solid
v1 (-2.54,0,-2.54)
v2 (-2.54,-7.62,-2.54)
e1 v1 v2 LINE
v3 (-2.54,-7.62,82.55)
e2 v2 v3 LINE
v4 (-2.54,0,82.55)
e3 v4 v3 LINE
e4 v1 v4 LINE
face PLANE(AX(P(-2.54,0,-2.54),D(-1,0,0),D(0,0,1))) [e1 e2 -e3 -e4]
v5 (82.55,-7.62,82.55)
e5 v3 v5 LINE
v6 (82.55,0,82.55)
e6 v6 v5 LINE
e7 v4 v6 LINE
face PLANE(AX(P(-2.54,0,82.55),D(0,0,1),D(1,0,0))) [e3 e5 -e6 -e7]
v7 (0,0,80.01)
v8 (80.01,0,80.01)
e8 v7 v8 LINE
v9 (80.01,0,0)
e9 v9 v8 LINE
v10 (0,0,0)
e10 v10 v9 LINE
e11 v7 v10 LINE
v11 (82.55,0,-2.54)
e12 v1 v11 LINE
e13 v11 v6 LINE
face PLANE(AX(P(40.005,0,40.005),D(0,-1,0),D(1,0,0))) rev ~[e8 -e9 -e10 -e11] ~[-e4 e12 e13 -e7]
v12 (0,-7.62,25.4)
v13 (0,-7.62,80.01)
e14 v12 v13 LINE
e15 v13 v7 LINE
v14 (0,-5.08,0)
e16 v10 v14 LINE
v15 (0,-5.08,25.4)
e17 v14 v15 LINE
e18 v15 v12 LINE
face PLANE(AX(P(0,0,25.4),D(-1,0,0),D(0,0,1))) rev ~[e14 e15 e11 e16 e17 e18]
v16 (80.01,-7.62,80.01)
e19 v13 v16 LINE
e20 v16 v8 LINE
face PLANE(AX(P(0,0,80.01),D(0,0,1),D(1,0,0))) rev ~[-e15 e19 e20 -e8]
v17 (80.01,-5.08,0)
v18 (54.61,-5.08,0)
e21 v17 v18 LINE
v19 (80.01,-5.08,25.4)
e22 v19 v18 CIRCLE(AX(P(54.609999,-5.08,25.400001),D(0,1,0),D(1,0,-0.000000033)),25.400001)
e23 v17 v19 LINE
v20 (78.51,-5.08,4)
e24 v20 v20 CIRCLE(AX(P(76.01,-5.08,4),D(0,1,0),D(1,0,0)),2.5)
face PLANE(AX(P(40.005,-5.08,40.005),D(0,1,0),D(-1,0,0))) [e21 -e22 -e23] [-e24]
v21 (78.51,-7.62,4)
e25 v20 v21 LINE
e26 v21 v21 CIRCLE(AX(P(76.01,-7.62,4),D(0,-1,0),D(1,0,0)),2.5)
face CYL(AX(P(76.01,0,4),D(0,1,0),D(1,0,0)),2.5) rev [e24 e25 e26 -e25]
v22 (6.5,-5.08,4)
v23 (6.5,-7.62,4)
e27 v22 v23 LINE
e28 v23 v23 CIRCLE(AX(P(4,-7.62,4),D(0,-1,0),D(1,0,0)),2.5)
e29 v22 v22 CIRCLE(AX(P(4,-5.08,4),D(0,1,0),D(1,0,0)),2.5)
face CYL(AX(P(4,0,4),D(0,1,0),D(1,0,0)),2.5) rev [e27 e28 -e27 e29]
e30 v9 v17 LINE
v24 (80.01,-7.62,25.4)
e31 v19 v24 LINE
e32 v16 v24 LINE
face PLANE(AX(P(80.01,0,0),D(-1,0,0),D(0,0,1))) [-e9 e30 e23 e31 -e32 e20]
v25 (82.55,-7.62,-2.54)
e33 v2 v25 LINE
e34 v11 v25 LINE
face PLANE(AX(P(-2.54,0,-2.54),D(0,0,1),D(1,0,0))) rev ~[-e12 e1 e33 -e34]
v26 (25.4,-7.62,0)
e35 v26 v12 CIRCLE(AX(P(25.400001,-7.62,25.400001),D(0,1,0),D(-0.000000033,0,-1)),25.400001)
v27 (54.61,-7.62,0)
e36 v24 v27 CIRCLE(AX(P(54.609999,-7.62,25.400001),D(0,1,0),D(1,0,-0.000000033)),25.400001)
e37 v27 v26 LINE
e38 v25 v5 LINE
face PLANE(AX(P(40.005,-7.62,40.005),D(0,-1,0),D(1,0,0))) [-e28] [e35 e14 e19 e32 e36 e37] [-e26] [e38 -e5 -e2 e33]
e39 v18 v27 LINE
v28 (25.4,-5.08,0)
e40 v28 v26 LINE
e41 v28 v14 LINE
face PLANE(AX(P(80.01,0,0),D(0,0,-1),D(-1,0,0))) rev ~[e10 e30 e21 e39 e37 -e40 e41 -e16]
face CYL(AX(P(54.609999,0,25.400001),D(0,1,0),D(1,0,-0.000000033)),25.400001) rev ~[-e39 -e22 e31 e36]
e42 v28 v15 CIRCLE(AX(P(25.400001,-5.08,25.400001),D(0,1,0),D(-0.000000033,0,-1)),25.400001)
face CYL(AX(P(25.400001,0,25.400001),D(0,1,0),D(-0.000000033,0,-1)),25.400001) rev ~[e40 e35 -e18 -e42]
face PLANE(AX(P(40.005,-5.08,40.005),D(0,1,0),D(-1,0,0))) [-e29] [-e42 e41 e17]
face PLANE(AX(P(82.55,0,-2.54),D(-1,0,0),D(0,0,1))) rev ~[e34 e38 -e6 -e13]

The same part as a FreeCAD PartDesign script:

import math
import FreeCAD as App
import Part
import Sketcher
from FreeCAD import Vector
Q = App.Units.Quantity

doc = App.newDocument("Part")
body = doc.addObject("PartDesign::Body", "Body")

# Sketch on XZ plane
sketch1 = body.newObject("Sketcher::SketchObject", "Sketch")
sketch1.AttachmentSupport = (doc.getObject("XZ_Plane"), [""])
sketch1.MapMode = "FlatFace"
sketch1.addGeometry(Part.LineSegment(Vector(-2.5, 82.5, 0), Vector(-2.5, -2.5, 0)), False)
sketch1.addGeometry(Part.LineSegment(Vector(-2.5, -2.5, 0), Vector(82.5, -2.5, 0)), False)
sketch1.addGeometry(Part.LineSegment(Vector(82.5, -2.5, 0), Vector(82.5, 82.5, 0)), False)
sketch1.addGeometry(Part.LineSegment(Vector(82.5, 82.5, 0), Vector(-2.5, 82.5, 0)), False)
sketch1.addGeometry(Part.Circle(Vector(4, 4, 0), Vector(0, 0, 1), 2.5), False)
sketch1.addGeometry(Part.LineSegment(Vector(54.6, 0, 0), Vector(25.4, 0, 0)), False)
sketch1.addGeometry(Part.ArcOfCircle(Part.Circle(Vector(25.4, 25.4, 0), Vector(0, 0, 1), 25.4), math.radians(-180), math.radians(-90)), False)
sketch1.addGeometry(Part.LineSegment(Vector(0, 25.4, 0), Vector(0, 80, 0)), False)
sketch1.addGeometry(Part.LineSegment(Vector(0, 80, 0), Vector(80, 80, 0)), False)
sketch1.addGeometry(Part.LineSegment(Vector(80, 80, 0), Vector(80, 25.4, 0)), False)
sketch1.addGeometry(Part.ArcOfCircle(Part.Circle(Vector(54.6, 25.4, 0), Vector(0, 0, 1), 25.4), math.radians(-90), math.radians(0)), False)
sketch1.addGeometry(Part.Circle(Vector(76, 4, 0), Vector(0, 0, 1), 2.5), False)
sketch1.addConstraint(Sketcher.Constraint("Coincident", 0, 2, 1, 1))
sketch1.addConstraint(Sketcher.Constraint("Coincident", 1, 2, 2, 1))
sketch1.addConstraint(Sketcher.Constraint("Coincident", 2, 2, 3, 1))
sketch1.addConstraint(Sketcher.Constraint("Coincident", 3, 2, 0, 1))
sketch1.addConstraint(Sketcher.Constraint("Tangent", 5, 2, 6, 2))
sketch1.addConstraint(Sketcher.Constraint("Tangent", 6, 1, 7, 1))
sketch1.addConstraint(Sketcher.Constraint("Coincident", 7, 2, 8, 1))
sketch1.addConstraint(Sketcher.Constraint("Coincident", 8, 2, 9, 1))
sketch1.addConstraint(Sketcher.Constraint("Tangent", 9, 2, 10, 2))
sketch1.addConstraint(Sketcher.Constraint("Tangent", 10, 1, 5, 1))
sketch1.addConstraint(Sketcher.Constraint("Vertical", 0))
sketch1.addConstraint(Sketcher.Constraint("Horizontal", 1))
sketch1.addConstraint(Sketcher.Constraint("Vertical", 2))
sketch1.addConstraint(Sketcher.Constraint("Horizontal", 3))
sketch1.addConstraint(Sketcher.Constraint("Horizontal", 5))
sketch1.addConstraint(Sketcher.Constraint("Vertical", 7))
sketch1.addConstraint(Sketcher.Constraint("Horizontal", 8))
sketch1.addConstraint(Sketcher.Constraint("Vertical", 9))
sketch1.addConstraint(Sketcher.Constraint("Equal", 6, 10))
sketch1.addConstraint(Sketcher.Constraint("Equal", 4, 11))
sketch1.addConstraint(Sketcher.Constraint("PointOnObject", 5, 2, -1))
sketch1.addConstraint(Sketcher.Constraint("PointOnObject", 6, 1, -2))
sketch1.addConstraint(Sketcher.Constraint("Horizontal", 4, 3, 11, 3))
sketch1.addConstraint(Sketcher.Constraint("Equal", 3, 0))
sketch1.addConstraint(Sketcher.Constraint("Radius", 6, Q("1 in")))
sketch1.addConstraint(Sketcher.Constraint("DistanceX", 1, 1, 1, 2, Q("3.35 in")))
sketch1.addConstraint(Sketcher.Constraint("DistanceX", 5, 2, 5, 1, Q("1.15 in")))
sketch1.addConstraint(Sketcher.Constraint("DistanceY", 7, 1, 7, 2, Q("2.15 in")))
sketch1.addConstraint(Sketcher.Constraint("DistanceX", 0, 2, -1, 1, Q("0.1 in")))
sketch1.addConstraint(Sketcher.Constraint("DistanceY", 0, 2, -1, 1, Q("0.1 in")))
sketch1.addConstraint(Sketcher.Constraint("Diameter", 4, 5.0))
sketch1.addConstraint(Sketcher.Constraint("DistanceX", -1, 1, 4, 3, 4.0))
sketch1.addConstraint(Sketcher.Constraint("DistanceY", -1, 1, 4, 3, 4.0))
sketch1.addConstraint(Sketcher.Constraint("DistanceX", -1, 1, 11, 3, 76.01))
pad1 = body.newObject("PartDesign::Pad", "Pad")
pad1.Profile = sketch1
pad1.Length = Q("0.3 in")

# Sketch on XZ plane
sketch2 = body.newObject("Sketcher::SketchObject", "Sketch001")
sketch2.AttachmentSupport = (doc.getObject("XZ_Plane"), [""])
sketch2.MapMode = "FlatFace"
sketch2.addGeometry(Part.LineSegment(Vector(80, 80, 0), Vector(80, 0, 0)), False)
sketch2.addGeometry(Part.LineSegment(Vector(80, 0, 0), Vector(0, 0, 0)), False)
sketch2.addGeometry(Part.LineSegment(Vector(0, 0, 0), Vector(0, 80, 0)), False)
sketch2.addGeometry(Part.LineSegment(Vector(0, 80, 0), Vector(80, 80, 0)), False)
sketch2.addConstraint(Sketcher.Constraint("Coincident", 0, 2, 1, 1))
sketch2.addConstraint(Sketcher.Constraint("Coincident", 1, 2, 2, 1))
sketch2.addConstraint(Sketcher.Constraint("Coincident", 2, 2, 3, 1))
sketch2.addConstraint(Sketcher.Constraint("Coincident", 3, 2, 0, 1))
sketch2.addConstraint(Sketcher.Constraint("Vertical", 0))
sketch2.addConstraint(Sketcher.Constraint("Horizontal", 1))
sketch2.addConstraint(Sketcher.Constraint("Vertical", 2))
sketch2.addConstraint(Sketcher.Constraint("Horizontal", 3))
sketch2.addConstraint(Sketcher.Constraint("Coincident", 1, 2, -1, 1))
sketch2.addConstraint(Sketcher.Constraint("Equal", 3, 0))
sketch2.addConstraint(Sketcher.Constraint("DistanceX", 1, 2, 1, 1, Q("3.15 in")))
pocket1 = body.newObject("PartDesign::Pocket", "Pocket")
pocket1.Profile = sketch2
pocket1.Length = Q("0.2 in")
pocket1.Reversed = True

doc.recompute()
